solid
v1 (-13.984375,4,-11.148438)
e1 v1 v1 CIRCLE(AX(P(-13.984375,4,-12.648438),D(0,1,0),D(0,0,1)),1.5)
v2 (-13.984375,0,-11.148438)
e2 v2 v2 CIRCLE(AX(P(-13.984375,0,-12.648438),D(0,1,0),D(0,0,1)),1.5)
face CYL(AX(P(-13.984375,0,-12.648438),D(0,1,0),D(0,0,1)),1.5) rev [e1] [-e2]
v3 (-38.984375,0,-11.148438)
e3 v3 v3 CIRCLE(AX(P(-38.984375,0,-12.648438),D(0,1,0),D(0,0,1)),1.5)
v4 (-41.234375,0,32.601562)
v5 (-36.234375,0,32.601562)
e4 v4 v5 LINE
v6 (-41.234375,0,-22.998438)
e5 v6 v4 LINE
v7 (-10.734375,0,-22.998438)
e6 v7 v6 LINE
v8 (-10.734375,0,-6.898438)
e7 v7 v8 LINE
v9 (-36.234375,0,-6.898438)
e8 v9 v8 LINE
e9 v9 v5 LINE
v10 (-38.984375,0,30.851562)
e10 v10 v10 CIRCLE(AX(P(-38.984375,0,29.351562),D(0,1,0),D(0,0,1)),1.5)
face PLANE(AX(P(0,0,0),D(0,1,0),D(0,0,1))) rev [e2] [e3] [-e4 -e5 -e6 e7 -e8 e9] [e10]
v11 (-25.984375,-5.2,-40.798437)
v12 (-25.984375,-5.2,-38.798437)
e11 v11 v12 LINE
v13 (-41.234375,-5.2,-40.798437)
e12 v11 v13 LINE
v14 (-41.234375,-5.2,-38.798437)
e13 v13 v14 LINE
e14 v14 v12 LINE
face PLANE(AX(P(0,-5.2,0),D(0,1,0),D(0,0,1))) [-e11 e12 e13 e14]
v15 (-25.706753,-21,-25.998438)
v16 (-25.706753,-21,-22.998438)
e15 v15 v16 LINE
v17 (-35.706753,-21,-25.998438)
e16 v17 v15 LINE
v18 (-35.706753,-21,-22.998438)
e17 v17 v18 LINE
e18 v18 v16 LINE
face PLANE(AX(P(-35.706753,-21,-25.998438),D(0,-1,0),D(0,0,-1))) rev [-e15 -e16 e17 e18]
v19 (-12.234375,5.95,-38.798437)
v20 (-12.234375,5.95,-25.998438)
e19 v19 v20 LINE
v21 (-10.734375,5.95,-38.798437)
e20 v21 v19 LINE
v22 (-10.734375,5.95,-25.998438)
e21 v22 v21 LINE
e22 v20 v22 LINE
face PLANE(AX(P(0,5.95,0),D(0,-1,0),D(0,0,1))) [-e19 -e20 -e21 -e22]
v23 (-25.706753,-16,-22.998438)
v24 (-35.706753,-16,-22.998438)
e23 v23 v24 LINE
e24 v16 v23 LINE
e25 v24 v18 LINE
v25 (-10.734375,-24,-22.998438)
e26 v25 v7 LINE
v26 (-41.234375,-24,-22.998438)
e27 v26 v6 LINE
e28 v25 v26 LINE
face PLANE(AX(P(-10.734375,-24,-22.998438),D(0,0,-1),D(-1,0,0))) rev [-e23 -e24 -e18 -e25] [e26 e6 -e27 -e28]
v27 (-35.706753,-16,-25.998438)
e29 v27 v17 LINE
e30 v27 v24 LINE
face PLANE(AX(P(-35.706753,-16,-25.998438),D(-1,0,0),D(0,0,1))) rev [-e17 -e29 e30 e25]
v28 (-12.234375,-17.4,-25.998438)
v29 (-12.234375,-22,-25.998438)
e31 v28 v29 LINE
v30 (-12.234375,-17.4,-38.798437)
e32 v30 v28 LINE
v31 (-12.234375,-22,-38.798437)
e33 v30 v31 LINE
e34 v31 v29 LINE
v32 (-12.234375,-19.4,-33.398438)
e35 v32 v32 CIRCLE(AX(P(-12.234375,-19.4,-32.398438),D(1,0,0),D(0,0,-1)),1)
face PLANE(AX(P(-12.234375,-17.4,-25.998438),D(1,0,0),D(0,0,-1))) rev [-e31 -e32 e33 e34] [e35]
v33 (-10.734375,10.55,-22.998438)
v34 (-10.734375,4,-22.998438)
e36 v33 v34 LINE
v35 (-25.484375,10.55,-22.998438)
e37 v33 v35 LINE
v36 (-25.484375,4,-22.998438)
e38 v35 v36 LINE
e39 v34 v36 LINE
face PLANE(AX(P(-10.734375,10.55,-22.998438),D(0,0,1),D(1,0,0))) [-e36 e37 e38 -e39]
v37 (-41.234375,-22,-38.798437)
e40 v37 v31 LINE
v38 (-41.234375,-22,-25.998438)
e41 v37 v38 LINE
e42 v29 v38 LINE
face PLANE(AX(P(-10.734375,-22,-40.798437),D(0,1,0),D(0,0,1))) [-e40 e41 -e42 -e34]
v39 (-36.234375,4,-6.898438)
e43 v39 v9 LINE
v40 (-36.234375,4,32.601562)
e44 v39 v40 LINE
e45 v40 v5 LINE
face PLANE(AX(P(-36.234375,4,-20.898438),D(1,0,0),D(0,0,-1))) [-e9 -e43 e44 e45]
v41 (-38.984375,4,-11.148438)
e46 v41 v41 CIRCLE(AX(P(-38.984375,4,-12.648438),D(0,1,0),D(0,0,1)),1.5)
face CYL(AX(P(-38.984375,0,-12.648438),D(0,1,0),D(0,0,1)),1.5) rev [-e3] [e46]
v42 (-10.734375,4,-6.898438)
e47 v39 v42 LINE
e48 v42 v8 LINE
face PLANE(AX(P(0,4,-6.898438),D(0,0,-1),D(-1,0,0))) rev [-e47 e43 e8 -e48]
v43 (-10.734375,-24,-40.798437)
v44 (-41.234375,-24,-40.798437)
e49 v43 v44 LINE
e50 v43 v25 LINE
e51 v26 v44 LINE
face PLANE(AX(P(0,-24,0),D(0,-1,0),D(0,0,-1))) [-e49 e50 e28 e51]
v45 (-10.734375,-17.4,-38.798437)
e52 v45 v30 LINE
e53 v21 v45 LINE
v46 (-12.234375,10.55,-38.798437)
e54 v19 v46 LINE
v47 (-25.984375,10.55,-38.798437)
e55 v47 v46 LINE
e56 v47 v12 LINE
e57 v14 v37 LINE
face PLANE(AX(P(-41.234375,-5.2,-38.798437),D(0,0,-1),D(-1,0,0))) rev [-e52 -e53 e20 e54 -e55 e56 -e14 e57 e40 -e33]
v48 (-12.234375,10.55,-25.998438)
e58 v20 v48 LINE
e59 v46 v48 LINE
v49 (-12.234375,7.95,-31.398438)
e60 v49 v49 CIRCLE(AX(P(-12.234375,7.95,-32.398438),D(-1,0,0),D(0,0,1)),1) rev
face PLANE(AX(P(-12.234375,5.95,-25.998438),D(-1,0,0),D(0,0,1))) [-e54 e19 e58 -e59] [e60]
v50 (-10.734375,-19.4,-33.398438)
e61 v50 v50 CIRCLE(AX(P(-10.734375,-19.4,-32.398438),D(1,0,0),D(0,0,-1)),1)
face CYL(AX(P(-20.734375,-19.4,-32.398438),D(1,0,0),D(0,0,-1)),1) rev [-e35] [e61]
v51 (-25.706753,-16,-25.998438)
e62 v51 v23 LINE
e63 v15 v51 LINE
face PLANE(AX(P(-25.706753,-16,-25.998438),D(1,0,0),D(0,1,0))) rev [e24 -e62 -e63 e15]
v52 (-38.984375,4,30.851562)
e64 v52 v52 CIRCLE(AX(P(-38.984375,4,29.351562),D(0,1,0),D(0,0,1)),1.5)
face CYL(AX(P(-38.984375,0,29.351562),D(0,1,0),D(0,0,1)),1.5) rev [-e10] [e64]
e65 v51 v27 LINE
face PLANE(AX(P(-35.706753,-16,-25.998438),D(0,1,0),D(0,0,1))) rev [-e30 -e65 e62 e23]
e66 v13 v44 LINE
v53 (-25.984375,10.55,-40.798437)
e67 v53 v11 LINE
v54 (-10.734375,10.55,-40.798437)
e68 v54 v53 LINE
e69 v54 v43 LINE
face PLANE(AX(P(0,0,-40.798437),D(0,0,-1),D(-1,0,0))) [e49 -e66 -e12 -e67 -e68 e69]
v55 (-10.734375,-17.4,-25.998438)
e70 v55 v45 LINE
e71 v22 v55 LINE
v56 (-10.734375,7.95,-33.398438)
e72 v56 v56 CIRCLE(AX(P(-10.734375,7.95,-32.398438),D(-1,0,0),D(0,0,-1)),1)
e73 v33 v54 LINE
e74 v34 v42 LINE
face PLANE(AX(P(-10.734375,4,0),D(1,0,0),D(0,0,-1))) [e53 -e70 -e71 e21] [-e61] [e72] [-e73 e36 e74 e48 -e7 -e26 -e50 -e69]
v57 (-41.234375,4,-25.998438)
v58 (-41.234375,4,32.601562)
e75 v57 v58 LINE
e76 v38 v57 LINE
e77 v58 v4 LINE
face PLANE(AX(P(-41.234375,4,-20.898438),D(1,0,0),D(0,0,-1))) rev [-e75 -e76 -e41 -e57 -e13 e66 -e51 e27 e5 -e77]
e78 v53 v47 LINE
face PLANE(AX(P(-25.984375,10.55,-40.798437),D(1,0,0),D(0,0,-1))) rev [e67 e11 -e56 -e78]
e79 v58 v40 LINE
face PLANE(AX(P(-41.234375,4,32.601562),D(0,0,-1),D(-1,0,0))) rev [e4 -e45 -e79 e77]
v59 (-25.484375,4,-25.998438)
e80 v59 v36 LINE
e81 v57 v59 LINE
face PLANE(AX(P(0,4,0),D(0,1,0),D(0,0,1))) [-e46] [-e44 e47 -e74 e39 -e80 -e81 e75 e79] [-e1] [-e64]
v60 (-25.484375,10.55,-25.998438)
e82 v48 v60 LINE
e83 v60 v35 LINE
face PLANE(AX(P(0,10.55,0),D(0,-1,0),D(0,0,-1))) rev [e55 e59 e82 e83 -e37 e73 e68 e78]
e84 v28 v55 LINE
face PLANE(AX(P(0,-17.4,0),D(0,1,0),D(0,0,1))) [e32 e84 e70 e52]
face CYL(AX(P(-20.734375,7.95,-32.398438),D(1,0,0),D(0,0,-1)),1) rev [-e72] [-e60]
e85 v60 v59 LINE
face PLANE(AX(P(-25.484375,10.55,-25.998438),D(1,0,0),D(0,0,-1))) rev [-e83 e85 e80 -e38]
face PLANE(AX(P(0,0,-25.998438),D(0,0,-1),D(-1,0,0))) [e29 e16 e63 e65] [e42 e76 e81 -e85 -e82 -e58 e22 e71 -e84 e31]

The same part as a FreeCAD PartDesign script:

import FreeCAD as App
import Part
import Sketcher
from FreeCAD import Vector
Q = App.Units.Quantity


def add_polygon(sketch, points):
    """Adds a closed chain of lines whose ends are joined by coincident constraints."""
    first, n = sketch.GeometryCount, len(points)
    for a, b in zip(points, points[1:] + points[:1]):
        sketch.addGeometry(Part.LineSegment(App.Vector(*a, 0), App.Vector(*b, 0)), False)
    for i in range(n):
        sketch.addConstraint(Sketcher.Constraint("Coincident", first + i, 2, first + (i + 1) % n, 1))

doc = App.newDocument("Part")
body = doc.addObject("PartDesign::Body", "Body")

sketch1 = body.newObject("Sketcher::SketchObject", "Sketch")
sketch1.AttachmentSupport = (doc.getObject("XZ_Plane"), [""])
sketch1.MapMode = "FlatFace"
add_polygon(sketch1, [(-41, -21), (-41, 33), (-36, 33), (-36, -7), (-11, -7), (-11, -21)])
sketch1.addConstraint([
    Sketcher.Constraint("Vertical", 0),
    Sketcher.Constraint("Horizontal", 1),
    Sketcher.Constraint("Vertical", 2),
    Sketcher.Constraint("Horizontal", 3),
    Sketcher.Constraint("Vertical", 4),
    Sketcher.Constraint("Horizontal", 5),
    Sketcher.Constraint("DistanceX", 1, 1, 1, 2, Q("5 mm")),
    Sketcher.Constraint("DistanceY", 4, 2, 4, 1, Q("14 mm")),
    Sketcher.Constraint("DistanceX", 3, 1, 3, 2, Q("25.5 mm")),
    Sketcher.Constraint("DistanceY", 0, 1, 0, 2, Q("53.5 mm")),
    Sketcher.Constraint("DistanceX", 0, 2, -1, 1, Q("41.234375 mm")),
    Sketcher.Constraint("DistanceY", -1, 1, 0, 2, Q("32.601562 mm")),
])
pad1 = body.newObject("PartDesign::Pad", "Pad")
pad1.Profile = sketch1
pad1.Length = 4
pad1.Reversed = True

sketch2 = body.newObject("Sketcher::SketchObject", "Sketch001")
sketch2.AttachmentSupport = (doc.getObject("XZ_Plane"), [""])
sketch2.MapMode = "FlatFace"
sketch2.AttachmentOffset = App.Placement(Vector(0, 0, -4), App.Rotation())
sketch2.addGeometry([
    Part.Circle(Vector(-39, 29.4, 0), Vector(0, 0, 1), 1.5),
    Part.Circle(Vector(-39, -12.6, 0), Vector(0, 0, 1), 1.5),
    Part.Circle(Vector(-14, -12.6, 0), Vector(0, 0, 1), 1.5),
], False)
sketch2.addConstraint([
    Sketcher.Constraint("Equal", 0, 1),
    Sketcher.Constraint("Equal", 1, 2),
    Sketcher.Constraint("Horizontal", 1, 3, 2, 3),
    Sketcher.Constraint("Vertical", 0, 3, 1, 3),
    Sketcher.Constraint("Diameter", 0, Q("3 mm")),
    Sketcher.Constraint("DistanceY", 1, 3, 0, 3, Q("42 mm")),
    Sketcher.Constraint("DistanceX", 1, 3, 2, 3, Q("25 mm")),
    Sketcher.Constraint("DistanceX", 0, 3, -1, 1, Q("38.984375 mm")),
    Sketcher.Constraint("DistanceY", -1, 1, 0, 3, Q("29.351562 mm")),
])
pocket1 = body.newObject("PartDesign::Pocket", "Pocket")
pocket1.Profile = sketch2
pocket1.Type = "ThroughAll"
pocket1.Reversed = True

sketch3 = body.newObject("Sketcher::SketchObject", "Sketch002")
sketch3.AttachmentSupport = (doc.getObject("XY_Plane"), [""])
sketch3.MapMode = "FlatFace"
sketch3.AttachmentOffset = App.Placement(Vector(0, 0, -20.898438), App.Rotation())
add_polygon(sketch3, [(-10.7, 4), (-10.7, 0), (-41.2, 0), (-41.2, 4)])
sketch3.addConstraint([
    Sketcher.Constraint("Vertical", 0),
    Sketcher.Constraint("Horizontal", 1),
    Sketcher.Constraint("Vertical", 2),
    Sketcher.Constraint("Horizontal", 3),
    Sketcher.Constraint("PointOnObject", 0, 2, -1),
    Sketcher.Constraint("DistanceY", 0, 2, 0, 1, Q("4 mm")),
    Sketcher.Constraint("DistanceX", 1, 2, 1, 1, Q("30.5 mm")),
    Sketcher.Constraint("DistanceX", 0, 2, -1, 1, Q("10.734375 mm")),
])
pad2 = body.newObject("PartDesign::Pad", "Pad001")
pad2.Profile = sketch3
pad2.Length = 5.1
pad2.Reversed = True

sketch4 = body.newObject("Sketcher::SketchObject", "Sketch003")
sketch4.AttachmentSupport = (doc.getObject("XZ_Plane"), [""])
sketch4.MapMode = "FlatFace"
add_polygon(sketch4, [(-41.2, -23), (-41.2, -26), (-10.7, -26), (-10.7, -23)])
sketch4.addConstraint([
    Sketcher.Constraint("Vertical", 0),
    Sketcher.Constraint("Horizontal", 1),
    Sketcher.Constraint("Vertical", 2),
    Sketcher.Constraint("Horizontal", 3),
    Sketcher.Constraint("DistanceY", 0, 2, 0, 1, Q("3 mm")),
    Sketcher.Constraint("DistanceX", 1, 1, 1, 2, Q("30.5 mm")),
    Sketcher.Constraint("DistanceX", 0, 2, -1, 1, Q("41.234375 mm")),
    Sketcher.Constraint("DistanceY", 0, 2, -1, 1, Q("25.998438 mm")),
])
pad3 = body.newObject("PartDesign::Pad", "Pad002")
pad3.Profile = sketch4
pad3.Length = 24

sketch5 = body.newObject("Sketcher::SketchObject", "Sketch004")
sketch5.AttachmentSupport = (doc.getObject("XY_Plane"), [""])
sketch5.MapMode = "FlatFace"
sketch5.AttachmentOffset = App.Placement(Vector(0, 0, -25.998438), App.Rotation())
add_polygon(sketch5, [(-10.7, -22), (-10.7, -24), (-41.2, -24), (-41.2, -22)])
sketch5.addConstraint([
    Sketcher.Constraint("Vertical", 0),
    Sketcher.Constraint("Horizontal", 1),
    Sketcher.Constraint("Vertical", 2),
    Sketcher.Constraint("Horizontal", 3),
    Sketcher.Constraint("DistanceY", 0, 2, 0, 1, Q("2 mm")),
    Sketcher.Constraint("DistanceX", 1, 2, 1, 1, Q("30.5 mm")),
    Sketcher.Constraint("DistanceY", 0, 2, -1, 1, Q("24 mm")),
    Sketcher.Constraint("DistanceX", 0, 2, -1, 1, Q("10.734375 mm")),
])
pad4 = body.newObject("PartDesign::Pad", "Pad003")
pad4.Profile = sketch5
pad4.Length = 14.8
pad4.Reversed = True

sketch6 = body.newObject("Sketcher::SketchObject", "Sketch005")
sketch6.AttachmentSupport = (doc.getObject("XZ_Plane"), [""])
sketch6.MapMode = "FlatFace"
sketch6.AttachmentOffset = App.Placement(Vector(0, 0, 22), App.Rotation())
add_polygon(sketch6, [(-41.2, -40.8), (-41.2, -38.8), (-10.7, -38.8), (-10.7, -40.8)])
sketch6.addConstraint([
    Sketcher.Constraint("Vertical", 0),
    Sketcher.Constraint("Horizontal", 1),
    Sketcher.Constraint("Vertical", 2),
    Sketcher.Constraint("Horizontal", 3),
    Sketcher.Constraint("DistanceY", 0, 1, 0, 2, Q("2 mm")),
    Sketcher.Constraint("DistanceX", 1, 1, 1, 2, Q("30.5 mm")),
    Sketcher.Constraint("DistanceX", 0, 2, -1, 1, Q("41.234375 mm")),
    Sketcher.Constraint("DistanceY", 0, 2, -1, 1, Q("38.798437 mm")),
])
pad5 = body.newObject("PartDesign::Pad", "Pad004")
pad5.Profile = sketch6
pad5.Length = 16.8
pad5.Reversed = True

sketch7 = body.newObject("Sketcher::SketchObject", "Sketch006")
sketch7.AttachmentSupport = (doc.getObject("XZ_Plane"), [""])
sketch7.MapMode = "FlatFace"
sketch7.AttachmentOffset = App.Placement(Vector(0, 0, 22), App.Rotation())
add_polygon(sketch7, [(-12.2, -38.8), (-12.2, -26), (-10.7, -26), (-10.7, -38.8)])
sketch7.addConstraint([
    Sketcher.Constraint("Vertical", 0),
    Sketcher.Constraint("Horizontal", 1),
    Sketcher.Constraint("Vertical", 2),
    Sketcher.Constraint("Horizontal", 3),
    Sketcher.Constraint("DistanceX", 1, 1, 1, 2, Q("1.5 mm")),
    Sketcher.Constraint("DistanceY", 0, 1, 0, 2, Q("12.8 mm")),
    Sketcher.Constraint("DistanceX", 0, 2, -1, 1, Q("12.234375 mm")),
    Sketcher.Constraint("DistanceY", 0, 2, -1, 1, Q("25.998438 mm")),
])
pad6 = body.newObject("PartDesign::Pad", "Pad005")
pad6.Profile = sketch7
pad6.Length = 4.6
pad6.Reversed = True

sketch8 = body.newObject("Sketcher::SketchObject", "Sketch007")
sketch8.AttachmentSupport = (doc.getObject("XZ_Plane"), [""])
sketch8.MapMode = "FlatFace"
sketch8.AttachmentOffset = App.Placement(Vector(0, 0, 5.2), App.Rotation())
add_polygon(sketch8, [(-26, -40.8), (-26, -38.8), (-10.7, -38.8), (-10.7, -40.8)])
sketch8.addConstraint([
    Sketcher.Constraint("Vertical", 0),
    Sketcher.Constraint("Horizontal", 1),
    Sketcher.Constraint("Vertical", 2),
    Sketcher.Constraint("Horizontal", 3),
    Sketcher.Constraint("DistanceY", 0, 1, 0, 2, Q("2 mm")),
    Sketcher.Constraint("DistanceX", 1, 1, 1, 2, Q("15.25 mm")),
    Sketcher.Constraint("DistanceX", 0, 2, -1, 1, Q("25.984375 mm")),
    Sketcher.Constraint("DistanceY", 0, 2, -1, 1, Q("38.798437 mm")),
])
pad7 = body.newObject("PartDesign::Pad", "Pad006")
pad7.Profile = sketch8
pad7.Length = 15.75
pad7.Reversed = True

sketch9 = body.newObject("Sketcher::SketchObject", "Sketch008")
sketch9.AttachmentSupport = (doc.getObject("XY_Plane"), [""])
sketch9.MapMode = "FlatFace"
sketch9.AttachmentOffset = App.Placement(Vector(0, 0, -22.998438), App.Rotation())
add_polygon(sketch9, [(-36, -16), (-36, -21), (-26, -21), (-26, -16)])
sketch9.addConstraint([
    Sketcher.Constraint("Vertical", 0),
    Sketcher.Constraint("Horizontal", 1),
    Sketcher.Constraint("Vertical", 2),
    Sketcher.Constraint("Horizontal", 3),
    Sketcher.Constraint("DistanceX", 1, 1, 1, 2, Q("10 mm")),
    Sketcher.Constraint("DistanceY", 0, 2, 0, 1, Q("5 mm")),
    Sketcher.Constraint("DistanceY", 0, 2, -1, 1, Q("21 mm")),
    Sketcher.Constraint("DistanceX", 0, 2, -1, 1, Q("35.706753 mm")),
])
pocket2 = body.newObject("PartDesign::Pocket", "Pocket001")
pocket2.Profile = sketch9
pocket2.Length = 3

sketch10 = body.newObject("Sketcher::SketchObject", "Sketch009")
sketch10.AttachmentSupport = (doc.getObject("YZ_Plane"), [""])
sketch10.MapMode = "FlatFace"
sketch10.AttachmentOffset = App.Placement(Vector(0, 0, -10.734375), App.Rotation())
sketch10.addGeometry(Part.Circle(Vector(-19.4, -32.4, 0), Vector(0, 0, 1), 1), False)
sketch10.addConstraint([
    Sketcher.Constraint("Diameter", 0, Q("2 mm")),
    Sketcher.Constraint("DistanceX", 0, 3, -1, 1, Q("19.4 mm")),
    Sketcher.Constraint("DistanceY", 0, 3, -1, 1, Q("32.398438 mm")),
])
pocket3 = body.newObject("PartDesign::Pocket", "Pocket002")
pocket3.Profile = sketch10
pocket3.Length = 10
doc.recompute()

datumplane = body.newObject("PartDesign::Plane", "DatumPlane")
datumplane.AttachmentSupport = (doc.getObject("XZ_Plane"), [""])
datumplane.MapMode = "FlatFace"
datumplane.AttachmentOffset = App.Placement(Vector(0, 0, 5.725), App.Rotation())
mirrored = body.newObject("PartDesign::Mirrored", "Mirrored")
mirrored.Originals = [pad6, pocket3]
mirrored.MirrorPlane = (datumplane, [""])
body.Tip = mirrored

sketch11 = body.newObject("Sketcher::SketchObject", "Sketch010")
sketch11.AttachmentSupport = (doc.getObject("XZ_Plane"), [""])
sketch11.MapMode = "FlatFace"
sketch11.AttachmentOffset = App.Placement(Vector(0, 0, -4), App.Rotation())
add_polygon(sketch11, [(-25.5, -26), (-25.5, -23), (-10.7, -23), (-10.7, -26)])
sketch11.addConstraint([
    Sketcher.Constraint("Vertical", 0),
    Sketcher.Constraint("Horizontal", 1),
    Sketcher.Constraint("Vertical", 2),
    Sketcher.Constraint("Horizontal", 3),
    Sketcher.Constraint("DistanceY", 0, 1, 0, 2, Q("3 mm")),
    Sketcher.Constraint("DistanceX", 1, 1, 1, 2, Q("14.75 mm")),
    Sketcher.Constraint("DistanceX", 0, 2, -1, 1, Q("25.484375 mm")),
    Sketcher.Constraint("DistanceY", 0, 2, -1, 1, Q("22.998438 mm")),
])
pad8 = body.newObject("PartDesign::Pad", "Pad007")
pad8.Profile = sketch11
pad8.Length = 6.55
pad8.Reversed = True

doc.recompute()
